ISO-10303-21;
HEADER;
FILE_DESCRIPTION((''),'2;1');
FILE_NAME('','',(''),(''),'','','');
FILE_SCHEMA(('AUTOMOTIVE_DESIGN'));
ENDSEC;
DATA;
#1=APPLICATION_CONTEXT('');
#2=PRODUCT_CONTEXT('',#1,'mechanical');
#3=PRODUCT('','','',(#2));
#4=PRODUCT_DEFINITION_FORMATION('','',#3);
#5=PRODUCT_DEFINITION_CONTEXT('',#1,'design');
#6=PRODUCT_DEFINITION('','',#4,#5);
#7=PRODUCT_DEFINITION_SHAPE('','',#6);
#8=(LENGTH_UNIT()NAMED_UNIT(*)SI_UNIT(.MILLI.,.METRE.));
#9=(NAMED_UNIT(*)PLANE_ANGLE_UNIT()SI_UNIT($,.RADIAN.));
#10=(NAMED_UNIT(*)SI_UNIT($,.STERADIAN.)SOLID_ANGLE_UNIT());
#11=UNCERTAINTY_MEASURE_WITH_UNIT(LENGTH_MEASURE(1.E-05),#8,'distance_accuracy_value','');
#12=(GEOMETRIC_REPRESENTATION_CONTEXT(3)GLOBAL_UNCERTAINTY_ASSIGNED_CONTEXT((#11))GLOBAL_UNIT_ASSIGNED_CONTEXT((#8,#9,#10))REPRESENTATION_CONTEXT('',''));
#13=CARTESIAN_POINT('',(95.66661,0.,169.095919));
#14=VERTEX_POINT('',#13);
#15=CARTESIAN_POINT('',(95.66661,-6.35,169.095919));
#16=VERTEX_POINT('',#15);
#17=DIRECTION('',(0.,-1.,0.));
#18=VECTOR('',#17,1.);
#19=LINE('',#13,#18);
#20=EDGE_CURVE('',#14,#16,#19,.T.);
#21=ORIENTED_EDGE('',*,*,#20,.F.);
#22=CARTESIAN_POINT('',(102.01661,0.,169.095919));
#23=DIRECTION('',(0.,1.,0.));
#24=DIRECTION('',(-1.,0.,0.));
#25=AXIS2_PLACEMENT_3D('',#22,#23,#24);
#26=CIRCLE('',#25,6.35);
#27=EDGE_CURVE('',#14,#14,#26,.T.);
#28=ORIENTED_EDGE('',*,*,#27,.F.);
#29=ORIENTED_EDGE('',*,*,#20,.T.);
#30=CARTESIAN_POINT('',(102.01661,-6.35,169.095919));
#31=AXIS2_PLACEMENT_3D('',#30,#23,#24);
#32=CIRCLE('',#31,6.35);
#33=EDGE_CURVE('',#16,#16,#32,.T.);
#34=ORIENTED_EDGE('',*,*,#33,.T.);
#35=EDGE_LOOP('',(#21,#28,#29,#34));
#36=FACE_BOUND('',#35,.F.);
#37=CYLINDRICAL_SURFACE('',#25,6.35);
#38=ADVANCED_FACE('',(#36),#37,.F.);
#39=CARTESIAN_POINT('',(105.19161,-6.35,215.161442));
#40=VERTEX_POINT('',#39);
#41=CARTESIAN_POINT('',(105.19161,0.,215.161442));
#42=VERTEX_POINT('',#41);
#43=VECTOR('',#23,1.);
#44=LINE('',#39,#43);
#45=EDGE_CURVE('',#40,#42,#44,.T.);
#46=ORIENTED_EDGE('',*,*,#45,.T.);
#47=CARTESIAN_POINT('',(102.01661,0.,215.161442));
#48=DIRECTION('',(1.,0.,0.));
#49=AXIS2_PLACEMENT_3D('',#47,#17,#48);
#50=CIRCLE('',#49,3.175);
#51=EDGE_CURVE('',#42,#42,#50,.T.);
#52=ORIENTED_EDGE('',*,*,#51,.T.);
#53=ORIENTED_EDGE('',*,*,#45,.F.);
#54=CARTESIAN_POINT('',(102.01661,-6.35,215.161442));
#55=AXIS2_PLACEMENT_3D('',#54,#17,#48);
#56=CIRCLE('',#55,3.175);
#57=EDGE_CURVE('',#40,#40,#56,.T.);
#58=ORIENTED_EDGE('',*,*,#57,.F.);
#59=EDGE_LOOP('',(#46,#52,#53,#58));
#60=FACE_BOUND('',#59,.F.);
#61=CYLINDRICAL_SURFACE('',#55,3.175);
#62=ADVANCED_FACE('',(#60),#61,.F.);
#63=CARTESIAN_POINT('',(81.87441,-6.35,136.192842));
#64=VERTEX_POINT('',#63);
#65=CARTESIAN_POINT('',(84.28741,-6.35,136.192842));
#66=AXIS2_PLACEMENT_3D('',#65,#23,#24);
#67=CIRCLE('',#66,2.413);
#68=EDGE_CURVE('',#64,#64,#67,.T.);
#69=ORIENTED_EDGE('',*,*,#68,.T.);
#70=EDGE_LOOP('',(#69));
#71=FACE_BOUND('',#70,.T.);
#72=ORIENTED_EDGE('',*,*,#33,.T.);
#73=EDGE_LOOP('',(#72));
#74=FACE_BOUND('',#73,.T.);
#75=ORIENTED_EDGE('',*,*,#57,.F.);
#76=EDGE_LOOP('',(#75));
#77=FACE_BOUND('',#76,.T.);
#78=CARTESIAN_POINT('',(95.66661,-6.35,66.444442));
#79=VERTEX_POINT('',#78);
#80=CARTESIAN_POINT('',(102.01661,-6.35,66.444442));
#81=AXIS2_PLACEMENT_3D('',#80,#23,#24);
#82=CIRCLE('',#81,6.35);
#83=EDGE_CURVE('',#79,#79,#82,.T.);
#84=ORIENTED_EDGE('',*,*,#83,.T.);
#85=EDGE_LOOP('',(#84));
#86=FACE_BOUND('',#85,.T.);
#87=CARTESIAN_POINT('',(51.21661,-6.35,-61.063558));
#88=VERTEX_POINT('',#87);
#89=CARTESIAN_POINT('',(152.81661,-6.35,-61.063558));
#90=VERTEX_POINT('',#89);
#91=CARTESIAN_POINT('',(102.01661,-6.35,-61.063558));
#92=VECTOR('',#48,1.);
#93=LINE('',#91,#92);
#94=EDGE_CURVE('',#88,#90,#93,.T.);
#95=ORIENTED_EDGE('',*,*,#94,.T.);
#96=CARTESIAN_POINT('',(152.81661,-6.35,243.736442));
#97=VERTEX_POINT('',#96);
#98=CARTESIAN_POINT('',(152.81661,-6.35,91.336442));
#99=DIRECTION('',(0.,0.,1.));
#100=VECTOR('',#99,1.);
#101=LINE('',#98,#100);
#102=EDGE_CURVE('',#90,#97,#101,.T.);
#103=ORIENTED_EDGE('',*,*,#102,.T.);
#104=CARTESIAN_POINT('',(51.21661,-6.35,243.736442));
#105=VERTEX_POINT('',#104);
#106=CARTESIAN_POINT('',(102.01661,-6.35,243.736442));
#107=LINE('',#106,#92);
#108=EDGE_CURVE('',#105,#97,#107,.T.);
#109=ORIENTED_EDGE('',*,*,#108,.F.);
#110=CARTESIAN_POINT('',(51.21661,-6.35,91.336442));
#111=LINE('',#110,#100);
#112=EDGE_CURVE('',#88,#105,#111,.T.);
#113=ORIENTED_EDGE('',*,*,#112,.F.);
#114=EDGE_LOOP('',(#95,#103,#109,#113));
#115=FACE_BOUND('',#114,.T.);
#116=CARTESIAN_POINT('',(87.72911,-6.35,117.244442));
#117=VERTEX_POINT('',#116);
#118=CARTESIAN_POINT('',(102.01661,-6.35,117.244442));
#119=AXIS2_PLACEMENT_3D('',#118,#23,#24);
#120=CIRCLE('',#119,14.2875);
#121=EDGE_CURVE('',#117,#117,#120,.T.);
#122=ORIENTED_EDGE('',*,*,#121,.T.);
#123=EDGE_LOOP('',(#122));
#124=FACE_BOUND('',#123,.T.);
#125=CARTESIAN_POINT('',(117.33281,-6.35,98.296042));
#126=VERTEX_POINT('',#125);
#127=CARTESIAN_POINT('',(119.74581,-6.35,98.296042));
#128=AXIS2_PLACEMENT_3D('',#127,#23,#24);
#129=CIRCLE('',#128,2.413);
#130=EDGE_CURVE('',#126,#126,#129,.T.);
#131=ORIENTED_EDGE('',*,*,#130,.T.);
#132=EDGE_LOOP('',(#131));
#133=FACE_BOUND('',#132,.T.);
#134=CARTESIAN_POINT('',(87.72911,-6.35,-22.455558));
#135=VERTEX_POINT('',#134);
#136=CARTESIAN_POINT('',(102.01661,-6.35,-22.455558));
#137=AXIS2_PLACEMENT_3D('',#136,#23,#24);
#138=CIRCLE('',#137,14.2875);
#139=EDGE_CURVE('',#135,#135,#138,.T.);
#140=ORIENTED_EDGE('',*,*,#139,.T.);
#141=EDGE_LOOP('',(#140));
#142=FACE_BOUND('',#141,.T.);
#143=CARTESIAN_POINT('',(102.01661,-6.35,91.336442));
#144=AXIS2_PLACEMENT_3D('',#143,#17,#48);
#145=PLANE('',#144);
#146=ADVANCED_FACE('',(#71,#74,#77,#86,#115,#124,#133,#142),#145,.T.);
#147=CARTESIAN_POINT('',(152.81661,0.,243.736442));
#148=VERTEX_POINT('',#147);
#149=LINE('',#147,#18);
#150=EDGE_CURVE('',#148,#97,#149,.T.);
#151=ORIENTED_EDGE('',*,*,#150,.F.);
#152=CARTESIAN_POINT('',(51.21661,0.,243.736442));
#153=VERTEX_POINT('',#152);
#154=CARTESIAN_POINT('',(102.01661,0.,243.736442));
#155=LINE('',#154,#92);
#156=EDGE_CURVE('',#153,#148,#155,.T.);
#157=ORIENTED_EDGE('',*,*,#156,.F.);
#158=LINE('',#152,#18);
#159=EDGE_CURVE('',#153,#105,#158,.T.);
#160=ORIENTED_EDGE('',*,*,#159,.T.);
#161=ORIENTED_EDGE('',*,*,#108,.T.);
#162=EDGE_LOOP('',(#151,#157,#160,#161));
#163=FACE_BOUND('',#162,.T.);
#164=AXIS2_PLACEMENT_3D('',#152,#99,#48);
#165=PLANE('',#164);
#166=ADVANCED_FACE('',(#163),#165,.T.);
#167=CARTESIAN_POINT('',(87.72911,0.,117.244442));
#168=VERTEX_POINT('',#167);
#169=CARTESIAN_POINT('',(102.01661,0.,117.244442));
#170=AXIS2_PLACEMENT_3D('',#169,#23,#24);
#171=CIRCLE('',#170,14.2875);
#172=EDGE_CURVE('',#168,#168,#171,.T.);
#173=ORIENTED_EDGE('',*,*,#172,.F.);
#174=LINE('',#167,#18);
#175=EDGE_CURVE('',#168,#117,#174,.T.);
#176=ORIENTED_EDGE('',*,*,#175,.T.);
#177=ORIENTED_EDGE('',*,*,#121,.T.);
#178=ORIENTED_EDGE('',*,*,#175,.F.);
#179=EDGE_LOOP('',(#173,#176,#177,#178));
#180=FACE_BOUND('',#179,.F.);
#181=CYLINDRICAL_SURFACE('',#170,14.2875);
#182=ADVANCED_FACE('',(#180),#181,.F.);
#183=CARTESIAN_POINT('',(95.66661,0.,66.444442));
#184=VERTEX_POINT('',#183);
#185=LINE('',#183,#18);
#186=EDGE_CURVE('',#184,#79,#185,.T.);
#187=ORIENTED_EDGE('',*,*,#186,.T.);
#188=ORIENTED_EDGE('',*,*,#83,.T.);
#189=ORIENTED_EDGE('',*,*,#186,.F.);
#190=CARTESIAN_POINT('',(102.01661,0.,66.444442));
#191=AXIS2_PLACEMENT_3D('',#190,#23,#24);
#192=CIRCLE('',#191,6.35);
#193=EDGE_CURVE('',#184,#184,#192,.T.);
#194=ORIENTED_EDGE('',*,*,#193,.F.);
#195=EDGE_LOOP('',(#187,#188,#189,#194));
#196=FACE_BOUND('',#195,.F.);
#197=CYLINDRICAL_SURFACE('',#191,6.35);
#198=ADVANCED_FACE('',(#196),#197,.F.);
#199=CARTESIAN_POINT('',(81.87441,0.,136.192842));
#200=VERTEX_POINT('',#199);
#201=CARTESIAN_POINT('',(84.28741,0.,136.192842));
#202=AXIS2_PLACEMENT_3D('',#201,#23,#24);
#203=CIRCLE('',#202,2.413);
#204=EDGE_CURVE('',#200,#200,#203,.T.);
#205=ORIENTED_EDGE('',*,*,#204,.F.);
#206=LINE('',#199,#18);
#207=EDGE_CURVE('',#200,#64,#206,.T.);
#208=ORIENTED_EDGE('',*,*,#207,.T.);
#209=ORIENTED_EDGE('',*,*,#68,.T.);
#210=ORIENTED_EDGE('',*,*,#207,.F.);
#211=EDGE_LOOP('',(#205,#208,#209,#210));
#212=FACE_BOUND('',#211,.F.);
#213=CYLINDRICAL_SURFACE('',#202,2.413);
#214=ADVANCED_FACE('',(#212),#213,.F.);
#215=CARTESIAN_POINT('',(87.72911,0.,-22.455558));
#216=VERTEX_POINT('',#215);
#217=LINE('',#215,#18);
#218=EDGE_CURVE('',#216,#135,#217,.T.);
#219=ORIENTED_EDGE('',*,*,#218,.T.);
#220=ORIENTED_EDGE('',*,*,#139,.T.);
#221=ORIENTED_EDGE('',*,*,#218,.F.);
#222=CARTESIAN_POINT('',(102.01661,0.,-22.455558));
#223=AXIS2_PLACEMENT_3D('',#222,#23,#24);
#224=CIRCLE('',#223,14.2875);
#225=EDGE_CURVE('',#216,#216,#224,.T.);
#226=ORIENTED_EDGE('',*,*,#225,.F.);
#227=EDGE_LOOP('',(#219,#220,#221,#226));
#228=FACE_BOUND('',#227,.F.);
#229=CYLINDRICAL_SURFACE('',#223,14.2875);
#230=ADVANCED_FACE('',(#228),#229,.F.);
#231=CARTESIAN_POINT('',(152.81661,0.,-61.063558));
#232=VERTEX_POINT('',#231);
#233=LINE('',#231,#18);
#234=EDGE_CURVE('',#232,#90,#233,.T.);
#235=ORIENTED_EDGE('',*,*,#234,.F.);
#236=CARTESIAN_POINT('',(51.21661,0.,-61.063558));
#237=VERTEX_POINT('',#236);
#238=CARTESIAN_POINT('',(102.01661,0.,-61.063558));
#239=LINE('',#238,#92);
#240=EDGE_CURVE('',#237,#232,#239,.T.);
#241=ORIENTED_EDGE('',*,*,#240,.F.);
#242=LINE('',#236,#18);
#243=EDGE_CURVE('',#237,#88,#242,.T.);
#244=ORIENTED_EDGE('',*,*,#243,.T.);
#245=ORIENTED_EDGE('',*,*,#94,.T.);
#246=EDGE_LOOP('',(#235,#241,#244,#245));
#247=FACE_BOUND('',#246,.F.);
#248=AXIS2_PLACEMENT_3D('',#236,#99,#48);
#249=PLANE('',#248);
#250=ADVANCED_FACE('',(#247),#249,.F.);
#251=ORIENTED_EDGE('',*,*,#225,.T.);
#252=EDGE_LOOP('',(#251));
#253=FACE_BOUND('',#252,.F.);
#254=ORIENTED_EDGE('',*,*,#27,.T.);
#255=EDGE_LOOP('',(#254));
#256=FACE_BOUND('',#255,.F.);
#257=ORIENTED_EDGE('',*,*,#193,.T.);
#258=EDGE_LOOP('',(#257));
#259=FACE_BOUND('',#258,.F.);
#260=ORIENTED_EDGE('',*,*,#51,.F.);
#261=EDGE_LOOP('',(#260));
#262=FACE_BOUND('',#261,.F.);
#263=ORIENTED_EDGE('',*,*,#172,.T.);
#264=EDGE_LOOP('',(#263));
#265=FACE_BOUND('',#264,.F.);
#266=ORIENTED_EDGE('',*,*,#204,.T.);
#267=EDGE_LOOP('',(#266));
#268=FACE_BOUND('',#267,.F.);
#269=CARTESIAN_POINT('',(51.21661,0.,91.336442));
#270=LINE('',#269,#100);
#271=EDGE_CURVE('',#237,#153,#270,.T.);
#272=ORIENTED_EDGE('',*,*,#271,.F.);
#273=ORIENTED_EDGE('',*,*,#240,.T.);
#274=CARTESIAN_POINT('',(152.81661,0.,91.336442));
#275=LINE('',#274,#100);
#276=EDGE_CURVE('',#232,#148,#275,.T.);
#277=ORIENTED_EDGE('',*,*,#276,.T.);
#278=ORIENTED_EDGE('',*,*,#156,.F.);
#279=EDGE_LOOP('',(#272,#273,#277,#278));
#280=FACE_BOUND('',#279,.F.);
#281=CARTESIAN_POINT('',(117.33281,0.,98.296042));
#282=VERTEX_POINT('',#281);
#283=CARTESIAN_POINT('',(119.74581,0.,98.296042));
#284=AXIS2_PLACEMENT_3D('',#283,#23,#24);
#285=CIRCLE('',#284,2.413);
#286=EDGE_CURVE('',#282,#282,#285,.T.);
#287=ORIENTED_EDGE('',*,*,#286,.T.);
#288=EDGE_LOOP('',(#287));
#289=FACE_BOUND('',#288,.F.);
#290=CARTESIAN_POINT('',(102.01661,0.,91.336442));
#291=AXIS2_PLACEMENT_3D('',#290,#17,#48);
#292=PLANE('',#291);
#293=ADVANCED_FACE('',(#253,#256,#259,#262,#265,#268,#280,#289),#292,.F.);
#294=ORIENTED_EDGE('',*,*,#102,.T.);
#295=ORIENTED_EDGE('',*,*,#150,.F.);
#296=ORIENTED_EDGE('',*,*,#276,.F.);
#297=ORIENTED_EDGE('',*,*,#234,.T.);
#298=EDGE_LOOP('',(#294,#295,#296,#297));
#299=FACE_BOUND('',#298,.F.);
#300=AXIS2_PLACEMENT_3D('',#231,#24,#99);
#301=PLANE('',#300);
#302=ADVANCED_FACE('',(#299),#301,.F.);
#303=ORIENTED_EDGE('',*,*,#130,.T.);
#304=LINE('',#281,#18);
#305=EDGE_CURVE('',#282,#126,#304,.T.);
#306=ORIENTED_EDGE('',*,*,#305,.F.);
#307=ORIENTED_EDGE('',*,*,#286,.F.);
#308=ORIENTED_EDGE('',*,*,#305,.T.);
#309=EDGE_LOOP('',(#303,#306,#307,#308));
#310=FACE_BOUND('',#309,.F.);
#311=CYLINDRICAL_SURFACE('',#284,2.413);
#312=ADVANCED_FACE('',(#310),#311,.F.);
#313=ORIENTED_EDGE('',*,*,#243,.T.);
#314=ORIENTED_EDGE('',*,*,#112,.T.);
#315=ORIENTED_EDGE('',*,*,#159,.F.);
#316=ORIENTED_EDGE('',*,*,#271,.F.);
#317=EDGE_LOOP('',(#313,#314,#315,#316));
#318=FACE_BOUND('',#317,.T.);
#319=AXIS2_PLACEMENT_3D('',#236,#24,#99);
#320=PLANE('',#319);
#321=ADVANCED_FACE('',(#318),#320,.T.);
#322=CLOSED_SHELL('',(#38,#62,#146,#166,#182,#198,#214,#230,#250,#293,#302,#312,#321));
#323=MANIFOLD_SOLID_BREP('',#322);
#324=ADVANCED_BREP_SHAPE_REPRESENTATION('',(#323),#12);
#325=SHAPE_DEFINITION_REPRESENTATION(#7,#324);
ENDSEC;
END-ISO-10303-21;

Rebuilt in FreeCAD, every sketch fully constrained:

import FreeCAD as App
import Part
import Sketcher
Q = App.Units.Quantity


def add_polygon(sketch, points):
    """Adds a closed chain of lines whose ends are joined by coincident constraints."""
    first, n = sketch.GeometryCount, len(points)
    for a, b in zip(points, points[1:] + points[:1]):
        sketch.addGeometry(Part.LineSegment(App.Vector(*a, 0), App.Vector(*b, 0)), False)
    for i in range(n):
        sketch.addConstraint(Sketcher.Constraint("Coincident", first + i, 2, first + (i + 1) % n, 1))

doc = App.newDocument("Part")
body = doc.addObject("PartDesign::Body", "Body")

sketch1 = doc.addObject("Sketcher::SketchObject", "Sketch")
body.addObject(sketch1)
sketch1.AttachmentSupport = (doc.XZ_Plane, [""])
sketch1.MapMode = "FlatFace"
add_polygon(sketch1, [(51, 244), (51, -61), (153, -61), (153, 244)])
sketch1.addConstraint(Sketcher.Constraint("Vertical", 0))
sketch1.addConstraint(Sketcher.Constraint("Horizontal", 1))
sketch1.addConstraint(Sketcher.Constraint("Vertical", 2))
sketch1.addConstraint(Sketcher.Constraint("Horizontal", 3))
sketch1.addConstraint(Sketcher.Constraint("DistanceX", 1, 1, 1, 2, Q("4 in")))
sketch1.addConstraint(Sketcher.Constraint("DistanceY", 0, 2, 0, 1, Q("12 in")))
sketch1.addConstraint(Sketcher.Constraint("DistanceX", -1, 1, 0, 2, 51.21661))
sketch1.addConstraint(Sketcher.Constraint("DistanceY", 0, 2, -1, 1, 61.063558))
pad1 = doc.addObject("PartDesign::Pad", "Pad")
body.addObject(pad1)
pad1.Profile = sketch1
pad1.Length = Q("0.25 in")

sketch2 = doc.addObject("Sketcher::SketchObject", "Sketch001")
body.addObject(sketch2)
sketch2.AttachmentSupport = (doc.XZ_Plane, [""])
sketch2.MapMode = "FlatFace"
sketch2.AttachmentOffset = App.Placement(App.Vector(0, 0, 0.25 * 25.4), App.Rotation())
sketch2.addGeometry(Part.Circle(App.Vector(102, 215.2, 0), App.Vector(0, 0, 1), 3.2), False)
sketch2.addConstraint(Sketcher.Constraint("Diameter", 0, Q("0.25 in")))
sketch2.addConstraint(Sketcher.Constraint("DistanceX", -1, 1, 0, 3, 102.01661))
sketch2.addConstraint(Sketcher.Constraint("DistanceY", -1, 1, 0, 3, 215.161442))
pocket1 = doc.addObject("PartDesign::Pocket", "Pocket")
body.addObject(pocket1)
pocket1.Profile = sketch2
pocket1.Length = Q("0.25 in")

sketch3 = doc.addObject("Sketcher::SketchObject", "Sketch002")
body.addObject(sketch3)
sketch3.AttachmentSupport = (doc.XZ_Plane, [""])
sketch3.MapMode = "FlatFace"
sketch3.addGeometry(Part.Circle(App.Vector(102, -22, 0), App.Vector(0, 0, 1), 14), False)
sketch3.addConstraint(Sketcher.Constraint("Diameter", 0, Q("1.125 in")))
sketch3.addConstraint(Sketcher.Constraint("DistanceX", -1, 1, 0, 3, 102.01661))
sketch3.addConstraint(Sketcher.Constraint("DistanceY", 0, 3, -1, 1, 22.455558))
pocket2 = doc.addObject("PartDesign::Pocket", "Pocket001")
body.addObject(pocket2)
pocket2.Profile = sketch3
pocket2.Length = Q("0.25 in")
pocket2.Reversed = True

sketch4 = doc.addObject("Sketcher::SketchObject", "Sketch003")
body.addObject(sketch4)
sketch4.AttachmentSupport = (doc.XZ_Plane, [""])
sketch4.MapMode = "FlatFace"
sketch4.addGeometry(Part.Circle(App.Vector(102, 117, 0), App.Vector(0, 0, 1), 14), False)
sketch4.addConstraint(Sketcher.Constraint("Diameter", 0, Q("1.125 in")))
sketch4.addConstraint(Sketcher.Constraint("DistanceX", -1, 1, 0, 3, 102.01661))
sketch4.addConstraint(Sketcher.Constraint("DistanceY", -1, 1, 0, 3, 117.244442))
pocket3 = doc.addObject("PartDesign::Pocket", "Pocket002")
body.addObject(pocket3)
pocket3.Profile = sketch4
pocket3.Length = Q("0.25 in")
pocket3.Reversed = True

sketch5 = doc.addObject("Sketcher::SketchObject", "Sketch004")
body.addObject(sketch5)
sketch5.AttachmentSupport = (doc.XZ_Plane, [""])
sketch5.MapMode = "FlatFace"
sketch5.addGeometry(Part.Circle(App.Vector(84.3, 136.2, 0), App.Vector(0, 0, 1), 2.4), False)
sketch5.addGeometry(Part.Circle(App.Vector(119.7, 98.3, 0), App.Vector(0, 0, 1), 2.4), False)
sketch5.addConstraint(Sketcher.Constraint("Equal", 0, 1))
sketch5.addConstraint(Sketcher.Constraint("Diameter", 0, Q("0.19 in")))
sketch5.addConstraint(Sketcher.Constraint("DistanceX", 0, 3, 1, 3, Q("1.396 in")))
sketch5.addConstraint(Sketcher.Constraint("DistanceY", 1, 3, 0, 3, Q("1.492 in")))
sketch5.addConstraint(Sketcher.Constraint("DistanceX", -1, 1, 0, 3, 84.28741))
sketch5.addConstraint(Sketcher.Constraint("DistanceY", -1, 1, 1, 3, 98.296042))
pocket4 = doc.addObject("PartDesign::Pocket", "Pocket003")
body.addObject(pocket4)
pocket4.Profile = sketch5
pocket4.Length = Q("0.25 in")
pocket4.Reversed = True

sketch6 = doc.addObject("Sketcher::SketchObject", "Sketch005")
body.addObject(sketch6)
sketch6.AttachmentSupport = (doc.XZ_Plane, [""])
sketch6.MapMode = "FlatFace"
sketch6.addGeometry(Part.Circle(App.Vector(102, 66, 0), App.Vector(0, 0, 1), 6), False)
sketch6.addGeometry(Part.Circle(App.Vector(102, 169, 0), App.Vector(0, 0, 1), 6), False)
sketch6.addConstraint(Sketcher.Constraint("Equal", 0, 1))
sketch6.addConstraint(Sketcher.Constraint("Vertical", 0, 3, 1, 3))
sketch6.addConstraint(Sketcher.Constraint("Diameter", 0, Q("0.5 in")))
sketch6.addConstraint(Sketcher.Constraint("DistanceX", -1, 1, 0, 3, 102.01661))
sketch6.addConstraint(Sketcher.Constraint("DistanceY", -1, 1, 0, 3, 66.444442))
sketch6.addConstraint(Sketcher.Constraint("DistanceY", -1, 1, 1, 3, 169.095919))
pocket5 = doc.addObject("PartDesign::Pocket", "Pocket004")
body.addObject(pocket5)
pocket5.Profile = sketch6
pocket5.Length = Q("0.25 in")
pocket5.Reversed = True

doc.recompute()
